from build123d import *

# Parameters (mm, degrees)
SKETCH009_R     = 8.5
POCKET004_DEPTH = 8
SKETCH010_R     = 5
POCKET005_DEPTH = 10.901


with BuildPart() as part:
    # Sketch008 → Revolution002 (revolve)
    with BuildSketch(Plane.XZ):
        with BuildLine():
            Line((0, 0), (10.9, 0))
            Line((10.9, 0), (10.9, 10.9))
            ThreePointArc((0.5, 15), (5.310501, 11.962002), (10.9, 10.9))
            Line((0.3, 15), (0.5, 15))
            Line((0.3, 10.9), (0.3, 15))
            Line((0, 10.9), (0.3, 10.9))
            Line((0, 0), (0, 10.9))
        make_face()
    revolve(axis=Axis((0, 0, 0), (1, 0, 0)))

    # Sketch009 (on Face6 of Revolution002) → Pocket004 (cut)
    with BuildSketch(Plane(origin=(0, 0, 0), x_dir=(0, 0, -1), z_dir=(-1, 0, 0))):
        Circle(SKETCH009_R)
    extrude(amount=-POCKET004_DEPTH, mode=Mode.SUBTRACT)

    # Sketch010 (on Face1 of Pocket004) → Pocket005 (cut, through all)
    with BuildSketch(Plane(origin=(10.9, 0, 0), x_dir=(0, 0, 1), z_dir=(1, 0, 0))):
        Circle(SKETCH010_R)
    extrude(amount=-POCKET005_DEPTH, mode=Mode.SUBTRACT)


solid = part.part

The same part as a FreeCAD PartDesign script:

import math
import FreeCAD as App
import Part
import Sketcher
Q = App.Units.Quantity

doc = App.newDocument("Part")
body = doc.addObject("PartDesign::Body", "Body")

sketch1 = body.newObject("Sketcher::SketchObject", "Sketch")
sketch1.AttachmentSupport = (doc.getObject("XZ_Plane"), [""])
sketch1.MapMode = "FlatFace"
sketch1.addGeometry(Part.LineSegment(App.Vector(0, 0, 0), App.Vector(10.9, 0, 0)), False)
sketch1.addGeometry(Part.LineSegment(App.Vector(10.9, 0, 0), App.Vector(10.9, 10.9, 0)), False)
sketch1.addGeometry(Part.ArcOfCircle(Part.Circle(App.Vector(10.9, 26.14, 0), App.Vector(0, 0, 1), 15.24), math.radians(-133), math.radians(-90)), False)
sketch1.addGeometry(Part.LineSegment(App.Vector(0.5, 15, 0), App.Vector(0.3, 15, 0)), False)
sketch1.addGeometry(Part.LineSegment(App.Vector(0.3, 15, 0), App.Vector(0.3, 10.9, 0)), False)
sketch1.addGeometry(Part.LineSegment(App.Vector(0.3, 10.9, 0), App.Vector(0, 10.9, 0)), False)
sketch1.addGeometry(Part.LineSegment(App.Vector(0, 10.9, 0), App.Vector(0, 0, 0)), False)
sketch1.addConstraint(Sketcher.Constraint("Coincident", 0, 2, 1, 1))
sketch1.addConstraint(Sketcher.Constraint("Coincident", 1, 2, 2, 2))
sketch1.addConstraint(Sketcher.Constraint("Coincident", 2, 1, 3, 1))
sketch1.addConstraint(Sketcher.Constraint("Coincident", 3, 2, 4, 1))
sketch1.addConstraint(Sketcher.Constraint("Coincident", 4, 2, 5, 1))
sketch1.addConstraint(Sketcher.Constraint("Coincident", 5, 2, 6, 1))
sketch1.addConstraint(Sketcher.Constraint("Coincident", 6, 2, 0, 1))
sketch1.addConstraint(Sketcher.Constraint("Horizontal", 0))
sketch1.addConstraint(Sketcher.Constraint("Vertical", 1))
sketch1.addConstraint(Sketcher.Constraint("Horizontal", 3))
sketch1.addConstraint(Sketcher.Constraint("Vertical", 4))
sketch1.addConstraint(Sketcher.Constraint("Horizontal", 5))
sketch1.addConstraint(Sketcher.Constraint("Vertical", 6))
sketch1.addConstraint(Sketcher.Constraint("Coincident", 6, 2, -1, 1))
sketch1.addConstraint(Sketcher.Constraint("Horizontal", 1, 2, 4, 2))
sketch1.addConstraint(Sketcher.Constraint("Vertical", 2, 3, 0, 2))
sketch1.addConstraint(Sketcher.Constraint("Equal", 0, 1))
sketch1.addConstraint(Sketcher.Constraint("DistanceX", 0, 1, 0, 2, Q("10.9 mm")))
sketch1.addConstraint(Sketcher.Constraint("DistanceX", 3, 2, 3, 1, Q("0.2 mm")))
sketch1.addConstraint(Sketcher.Constraint("DistanceX", 5, 2, 5, 1, Q("0.3 mm")))
sketch1.addConstraint(Sketcher.Constraint("DistanceY", 4, 2, 4, 1, Q("4.1 mm")))
revolution = body.newObject("PartDesign::Revolution", "Revolution")
revolution.Profile = sketch1
revolution.ReferenceAxis = (sketch1, ["H_Axis"])
revolution.Angle = 360

sketch2 = body.newObject("Sketcher::SketchObject", "Sketch001")
sketch2.AttachmentSupport = (doc.getObject("YZ_Plane"), [""])
sketch2.MapMode = "FlatFace"
sketch2.addGeometry(Part.Circle(App.Vector(0, 0, 0), App.Vector(0, 0, 1), 8), False)
sketch2.addConstraint(Sketcher.Constraint("Coincident", 0, 3, -1, 1))
sketch2.addConstraint(Sketcher.Constraint("Diameter", 0, Q("17 mm")))
pocket1 = body.newObject("PartDesign::Pocket", "Pocket")
pocket1.Profile = sketch2
pocket1.Length = 8
pocket1.Reversed = True

sketch3 = body.newObject("Sketcher::SketchObject", "Sketch002")
sketch3.AttachmentSupport = (doc.getObject("YZ_Plane"), [""])
sketch3.MapMode = "FlatFace"
sketch3.AttachmentOffset = App.Placement(App.Vector(0, 0, 10.9), App.Rotation())
sketch3.addGeometry(Part.Circle(App.Vector(0, 0, 0), App.Vector(0, 0, 1), 5), False)
sketch3.addConstraint(Sketcher.Constraint("Coincident", 0, 3, -1, 1))
sketch3.addConstraint(Sketcher.Constraint("Diameter", 0, Q("10 mm")))
pocket2 = body.newObject("PartDesign::Pocket", "Pocket001")
pocket2.Profile = sketch3
pocket2.Type = "ThroughAll"

doc.recompute()
